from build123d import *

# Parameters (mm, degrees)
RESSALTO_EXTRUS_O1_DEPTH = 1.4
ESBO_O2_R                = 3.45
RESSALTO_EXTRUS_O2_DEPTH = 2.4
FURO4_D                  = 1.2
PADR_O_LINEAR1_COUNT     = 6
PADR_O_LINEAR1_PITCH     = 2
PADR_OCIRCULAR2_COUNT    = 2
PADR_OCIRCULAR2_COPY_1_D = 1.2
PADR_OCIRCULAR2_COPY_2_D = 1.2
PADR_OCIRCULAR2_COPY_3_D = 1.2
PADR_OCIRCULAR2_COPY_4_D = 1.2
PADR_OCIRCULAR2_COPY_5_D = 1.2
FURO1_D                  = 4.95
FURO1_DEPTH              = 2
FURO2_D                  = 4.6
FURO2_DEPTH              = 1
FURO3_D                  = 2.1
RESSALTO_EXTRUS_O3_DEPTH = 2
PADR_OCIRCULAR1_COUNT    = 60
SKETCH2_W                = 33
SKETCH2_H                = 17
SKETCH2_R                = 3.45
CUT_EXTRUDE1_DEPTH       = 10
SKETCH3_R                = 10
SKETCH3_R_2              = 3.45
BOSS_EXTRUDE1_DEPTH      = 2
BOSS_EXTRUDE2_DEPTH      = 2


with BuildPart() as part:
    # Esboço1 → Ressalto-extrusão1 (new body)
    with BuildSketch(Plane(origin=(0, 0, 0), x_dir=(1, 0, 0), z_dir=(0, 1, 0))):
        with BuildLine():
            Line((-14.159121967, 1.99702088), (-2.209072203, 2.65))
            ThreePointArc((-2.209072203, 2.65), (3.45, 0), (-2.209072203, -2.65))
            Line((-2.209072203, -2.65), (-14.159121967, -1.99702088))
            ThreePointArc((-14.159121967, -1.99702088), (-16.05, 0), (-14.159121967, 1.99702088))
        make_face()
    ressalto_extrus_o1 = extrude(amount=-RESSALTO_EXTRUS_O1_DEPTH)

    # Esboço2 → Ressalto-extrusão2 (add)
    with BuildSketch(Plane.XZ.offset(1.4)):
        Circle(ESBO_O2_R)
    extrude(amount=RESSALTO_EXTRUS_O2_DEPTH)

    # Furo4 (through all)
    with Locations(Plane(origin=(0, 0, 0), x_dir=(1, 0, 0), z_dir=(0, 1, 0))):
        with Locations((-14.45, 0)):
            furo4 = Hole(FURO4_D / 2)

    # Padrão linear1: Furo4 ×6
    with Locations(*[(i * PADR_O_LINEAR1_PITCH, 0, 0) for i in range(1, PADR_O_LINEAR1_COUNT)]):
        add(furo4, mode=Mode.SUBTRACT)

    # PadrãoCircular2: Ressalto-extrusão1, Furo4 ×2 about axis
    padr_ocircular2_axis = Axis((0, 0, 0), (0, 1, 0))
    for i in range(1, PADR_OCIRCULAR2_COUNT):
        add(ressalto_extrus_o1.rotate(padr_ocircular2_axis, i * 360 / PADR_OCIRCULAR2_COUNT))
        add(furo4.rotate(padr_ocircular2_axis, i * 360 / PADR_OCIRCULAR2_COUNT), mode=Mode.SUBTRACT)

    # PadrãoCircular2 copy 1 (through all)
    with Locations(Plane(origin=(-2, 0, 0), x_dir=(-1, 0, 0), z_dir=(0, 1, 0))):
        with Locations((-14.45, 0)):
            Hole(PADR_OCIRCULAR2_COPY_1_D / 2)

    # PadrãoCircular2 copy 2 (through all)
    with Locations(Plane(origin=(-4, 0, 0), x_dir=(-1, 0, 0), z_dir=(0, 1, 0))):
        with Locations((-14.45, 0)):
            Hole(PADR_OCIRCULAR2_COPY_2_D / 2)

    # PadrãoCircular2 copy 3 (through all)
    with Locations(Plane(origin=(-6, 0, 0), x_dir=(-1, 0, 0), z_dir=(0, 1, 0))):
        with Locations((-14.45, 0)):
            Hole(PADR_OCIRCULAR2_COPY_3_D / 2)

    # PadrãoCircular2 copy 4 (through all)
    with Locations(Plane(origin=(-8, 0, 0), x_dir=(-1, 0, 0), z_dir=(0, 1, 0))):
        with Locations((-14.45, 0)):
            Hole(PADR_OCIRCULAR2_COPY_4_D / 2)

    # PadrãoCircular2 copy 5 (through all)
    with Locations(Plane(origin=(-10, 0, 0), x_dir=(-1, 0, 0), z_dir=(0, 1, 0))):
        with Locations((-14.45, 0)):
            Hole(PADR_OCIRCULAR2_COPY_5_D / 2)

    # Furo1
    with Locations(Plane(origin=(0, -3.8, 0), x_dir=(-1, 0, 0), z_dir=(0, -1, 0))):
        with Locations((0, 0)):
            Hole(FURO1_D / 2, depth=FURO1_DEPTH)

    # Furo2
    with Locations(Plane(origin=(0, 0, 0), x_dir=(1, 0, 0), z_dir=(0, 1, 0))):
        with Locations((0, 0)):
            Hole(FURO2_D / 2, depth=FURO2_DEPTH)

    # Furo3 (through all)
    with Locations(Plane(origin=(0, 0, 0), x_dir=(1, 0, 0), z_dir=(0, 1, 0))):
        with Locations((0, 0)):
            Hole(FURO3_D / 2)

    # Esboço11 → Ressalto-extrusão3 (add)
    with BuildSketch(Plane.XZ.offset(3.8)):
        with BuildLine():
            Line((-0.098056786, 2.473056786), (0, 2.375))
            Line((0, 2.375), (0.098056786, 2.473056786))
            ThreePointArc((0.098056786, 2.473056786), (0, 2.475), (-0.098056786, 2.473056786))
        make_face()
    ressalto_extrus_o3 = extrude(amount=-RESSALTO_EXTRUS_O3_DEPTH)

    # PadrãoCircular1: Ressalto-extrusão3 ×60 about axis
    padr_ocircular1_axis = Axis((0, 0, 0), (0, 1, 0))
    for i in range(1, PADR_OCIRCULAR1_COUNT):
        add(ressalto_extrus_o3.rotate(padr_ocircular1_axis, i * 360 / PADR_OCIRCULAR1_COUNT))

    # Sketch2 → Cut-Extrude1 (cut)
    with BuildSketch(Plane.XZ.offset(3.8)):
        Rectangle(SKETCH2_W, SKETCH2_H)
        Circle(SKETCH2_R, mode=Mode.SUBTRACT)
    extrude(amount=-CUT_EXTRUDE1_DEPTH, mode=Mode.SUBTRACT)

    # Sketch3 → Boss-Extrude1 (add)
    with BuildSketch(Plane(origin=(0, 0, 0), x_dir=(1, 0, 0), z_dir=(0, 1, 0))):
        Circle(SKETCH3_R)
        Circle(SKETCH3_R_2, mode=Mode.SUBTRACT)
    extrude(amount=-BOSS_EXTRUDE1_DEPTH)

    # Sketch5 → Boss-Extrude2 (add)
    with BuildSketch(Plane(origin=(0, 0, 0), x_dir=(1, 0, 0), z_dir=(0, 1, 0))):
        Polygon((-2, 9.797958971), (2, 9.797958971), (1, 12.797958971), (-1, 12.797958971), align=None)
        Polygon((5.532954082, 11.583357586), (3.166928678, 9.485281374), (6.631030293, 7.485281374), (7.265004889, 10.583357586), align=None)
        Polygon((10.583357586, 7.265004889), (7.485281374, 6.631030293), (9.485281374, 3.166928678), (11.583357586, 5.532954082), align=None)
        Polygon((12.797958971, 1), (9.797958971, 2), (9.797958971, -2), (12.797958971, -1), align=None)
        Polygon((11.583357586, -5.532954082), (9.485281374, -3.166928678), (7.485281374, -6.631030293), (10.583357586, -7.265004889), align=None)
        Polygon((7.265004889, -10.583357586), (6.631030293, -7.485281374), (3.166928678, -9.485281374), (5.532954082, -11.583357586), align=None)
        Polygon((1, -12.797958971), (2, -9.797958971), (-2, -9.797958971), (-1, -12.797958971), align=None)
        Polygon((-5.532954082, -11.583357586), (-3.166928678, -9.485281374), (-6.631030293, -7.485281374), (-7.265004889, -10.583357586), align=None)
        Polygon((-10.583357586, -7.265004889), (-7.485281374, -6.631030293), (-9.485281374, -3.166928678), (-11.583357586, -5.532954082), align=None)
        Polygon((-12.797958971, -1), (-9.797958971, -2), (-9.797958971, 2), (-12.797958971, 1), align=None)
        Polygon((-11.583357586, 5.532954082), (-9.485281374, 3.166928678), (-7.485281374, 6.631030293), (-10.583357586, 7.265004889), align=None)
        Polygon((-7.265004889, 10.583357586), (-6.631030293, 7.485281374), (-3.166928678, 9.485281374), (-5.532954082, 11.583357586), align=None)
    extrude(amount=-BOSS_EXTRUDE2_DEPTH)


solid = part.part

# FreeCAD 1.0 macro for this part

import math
import FreeCAD as App
import Part
import Sketcher
Q = App.Units.Quantity


def add_polygon(sketch, points):
    """Adds a closed chain of lines whose ends are joined by coincident constraints."""
    first, n = sketch.GeometryCount, len(points)
    for a, b in zip(points, points[1:] + points[:1]):
        sketch.addGeometry(Part.LineSegment(App.Vector(*a, 0), App.Vector(*b, 0)), False)
    for i in range(n):
        sketch.addConstraint(Sketcher.Constraint("Coincident", first + i, 2, first + (i + 1) % n, 1))

doc = App.newDocument("Part")
body = doc.addObject("PartDesign::Body", "Body")

# Sketch on XZ plane
sketch1 = body.newObject("Sketcher::SketchObject", "Sketch")
sketch1.AttachmentSupport = (doc.getObject("XZ_Plane"), [""])
sketch1.MapMode = "FlatFace"
sketch1.addGeometry([
    Part.LineSegment(App.Vector(-2.2, -2.6, 0), App.Vector(-14.2, -2, 0)),
    Part.ArcOfCircle(Part.Circle(App.Vector(-14.1, 0, 0), App.Vector(0, 0, 1), 2), math.radians(93), math.radians(267)),
    Part.LineSegment(App.Vector(-14.2, 2, 0), App.Vector(-2.2, 2.6, 0)),
    Part.ArcOfCircle(Part.Circle(App.Vector(0, 0, 0), App.Vector(0, 0, 1), 3.5), math.radians(-130), math.radians(130)),
], False)
sketch1.addConstraint([
    Sketcher.Constraint("Tangent", 0, 2, 1, 2),
    Sketcher.Constraint("Tangent", 1, 1, 2, 1),
    Sketcher.Constraint("Coincident", 2, 2, 3, 2),
    Sketcher.Constraint("Coincident", 3, 1, 0, 1),
    Sketcher.Constraint("Coincident", 3, 3, -1, 1),
    Sketcher.Constraint("Symmetric", 0, 2, 1, 1, -1),
    Sketcher.Constraint("Radius", 1, 2.0),
    Sketcher.Constraint("Radius", 3, 3.45),
    Sketcher.Constraint("DistanceY", 3, 1, 2, 2, 5.3),
    Sketcher.Constraint("DistanceX", 1, 3, -1, 1, 14.05),
])
pad1 = body.newObject("PartDesign::Pad", "Pad")
pad1.Profile = sketch1
pad1.Length = 1.4

# Sketch on XZ plane
sketch2 = body.newObject("Sketcher::SketchObject", "Sketch001")
sketch2.AttachmentSupport = (doc.getObject("XZ_Plane"), [""])
sketch2.MapMode = "FlatFace"
sketch2.AttachmentOffset = App.Placement(App.Vector(0, 0, 1.4), App.Rotation())
sketch2.addGeometry(Part.Circle(App.Vector(0, 0, 0), App.Vector(0, 0, 1), 3.5), False)
sketch2.addConstraint([
    Sketcher.Constraint("Coincident", 0, 3, -1, 1),
    Sketcher.Constraint("Diameter", 0, 6.9),
])
pad2 = body.newObject("PartDesign::Pad", "Pad001")
pad2.Profile = sketch2
pad2.Length = 2.4

# Sketch on XZ plane
sketch3 = body.newObject("Sketcher::SketchObject", "Sketch002")
sketch3.AttachmentSupport = (doc.getObject("XZ_Plane"), [""])
sketch3.MapMode = "FlatFace"
sketch3.addGeometry(Part.Circle(App.Vector(-14.4, 0, 0), App.Vector(0, 0, 1), 0.6), False)
sketch3.addConstraint([
    Sketcher.Constraint("PointOnObject", 0, 3, -1),
    Sketcher.Constraint("Diameter", 0, 1.2),
    Sketcher.Constraint("DistanceX", 0, 3, -1, 1, 14.45),
])
doc.recompute()
hole = body.newObject("PartDesign::Hole", "Hole")
hole.Profile = sketch3
hole.ThreadType = "None"
hole.Diameter = 1.2
hole.DepthType = "ThroughAll"
hole.Reversed = True
doc.recompute()

linearpattern = body.newObject("PartDesign::LinearPattern", "LinearPattern")
linearpattern.Originals = [hole]
linearpattern.Direction = (doc.getObject("X_Axis"), [""])
linearpattern.Mode = "offset"
linearpattern.Offset = 2
linearpattern.Occurrences = 6
body.Tip = linearpattern
doc.recompute()

polarpattern = body.newObject("PartDesign::PolarPattern", "PolarPattern")
polarpattern.Originals = [pad1, hole]
polarpattern.Axis = (doc.getObject("Y_Axis"), [""])
polarpattern.Angle = 360
polarpattern.Occurrences = 2
body.Tip = polarpattern

# Sketch on XZ plane
sketch4 = body.newObject("Sketcher::SketchObject", "Sketch003")
sketch4.AttachmentSupport = (doc.getObject("XZ_Plane"), [""])
sketch4.MapMode = "FlatFace"
sketch4.addGeometry(Part.Circle(App.Vector(12.4, 0, 0), App.Vector(0, 0, 1), 0.6), False)
sketch4.addConstraint([
    Sketcher.Constraint("PointOnObject", 0, 3, -1),
    Sketcher.Constraint("Diameter", 0, 1.2),
    Sketcher.Constraint("DistanceX", -1, 1, 0, 3, 12.45),
])
doc.recompute()
hole2 = body.newObject("PartDesign::Hole", "Hole001")
hole2.Profile = sketch4
hole2.ThreadType = "None"
hole2.Diameter = 1.2
hole2.DepthType = "ThroughAll"
hole2.Reversed = True

# Sketch on XZ plane
sketch5 = body.newObject("Sketcher::SketchObject", "Sketch004")
sketch5.AttachmentSupport = (doc.getObject("XZ_Plane"), [""])
sketch5.MapMode = "FlatFace"
sketch5.addGeometry(Part.Circle(App.Vector(10.4, 0, 0), App.Vector(0, 0, 1), 0.6), False)
sketch5.addConstraint([
    Sketcher.Constraint("PointOnObject", 0, 3, -1),
    Sketcher.Constraint("Diameter", 0, 1.2),
    Sketcher.Constraint("DistanceX", -1, 1, 0, 3, 10.45),
])
doc.recompute()
hole3 = body.newObject("PartDesign::Hole", "Hole002")
hole3.Profile = sketch5
hole3.ThreadType = "None"
hole3.Diameter = 1.2
hole3.DepthType = "ThroughAll"
hole3.Reversed = True

# Sketch on XZ plane
sketch6 = body.newObject("Sketcher::SketchObject", "Sketch005")
sketch6.AttachmentSupport = (doc.getObject("XZ_Plane"), [""])
sketch6.MapMode = "FlatFace"
sketch6.addGeometry(Part.Circle(App.Vector(8.4, 0, 0), App.Vector(0, 0, 1), 0.6), False)
sketch6.addConstraint([
    Sketcher.Constraint("PointOnObject", 0, 3, -1),
    Sketcher.Constraint("Diameter", 0, 1.2),
    Sketcher.Constraint("DistanceX", -1, 1, 0, 3, 8.45),
])
doc.recompute()
hole4 = body.newObject("PartDesign::Hole", "Hole003")
hole4.Profile = sketch6
hole4.ThreadType = "None"
hole4.Diameter = 1.2
hole4.DepthType = "ThroughAll"
hole4.Reversed = True

# Sketch on XZ plane
sketch7 = body.newObject("Sketcher::SketchObject", "Sketch006")
sketch7.AttachmentSupport = (doc.getObject("XZ_Plane"), [""])
sketch7.MapMode = "FlatFace"
sketch7.addGeometry(Part.Circle(App.Vector(6.5, 0, 0), App.Vector(0, 0, 1), 0.6), False)
sketch7.addConstraint([
    Sketcher.Constraint("PointOnObject", 0, 3, -1),
    Sketcher.Constraint("Diameter", 0, 1.2),
    Sketcher.Constraint("DistanceX", -1, 1, 0, 3, 6.45),
])
doc.recompute()
hole5 = body.newObject("PartDesign::Hole", "Hole004")
hole5.Profile = sketch7
hole5.ThreadType = "None"
hole5.Diameter = 1.2
hole5.DepthType = "ThroughAll"
hole5.Reversed = True

# Sketch on XZ plane
sketch8 = body.newObject("Sketcher::SketchObject", "Sketch007")
sketch8.AttachmentSupport = (doc.getObject("XZ_Plane"), [""])
sketch8.MapMode = "FlatFace"
sketch8.addGeometry(Part.Circle(App.Vector(4.5, 0, 0), App.Vector(0, 0, 1), 0.6), False)
sketch8.addConstraint([
    Sketcher.Constraint("PointOnObject", 0, 3, -1),
    Sketcher.Constraint("Diameter", 0, 1.2),
    Sketcher.Constraint("DistanceX", -1, 1, 0, 3, 4.45),
])
doc.recompute()
hole6 = body.newObject("PartDesign::Hole", "Hole005")
hole6.Profile = sketch8
hole6.ThreadType = "None"
hole6.Diameter = 1.2
hole6.DepthType = "ThroughAll"
hole6.Reversed = True

# Sketch on XZ plane
sketch9 = body.newObject("Sketcher::SketchObject", "Sketch008")
sketch9.AttachmentSupport = (doc.getObject("XZ_Plane"), [""])
sketch9.MapMode = "FlatFace"
sketch9.AttachmentOffset = App.Placement(App.Vector(0, 0, 3.8), App.Rotation())
sketch9.addGeometry(Part.Circle(App.Vector(0, 0, 0), App.Vector(0, 0, 1), 2.5), False)
sketch9.addConstraint([
    Sketcher.Constraint("Coincident", 0, 3, -1, 1),
    Sketcher.Constraint("Diameter", 0, 4.95),
])
doc.recompute()
hole7 = body.newObject("PartDesign::Hole", "Hole006")
hole7.Profile = sketch9
hole7.ThreadType = "None"
hole7.Diameter = 4.95
hole7.DepthType = "Dimension"
hole7.Depth = 2
hole7.DrillPoint = "Flat"

# Sketch on XZ plane
sketch10 = body.newObject("Sketcher::SketchObject", "Sketch009")
sketch10.AttachmentSupport = (doc.getObject("XZ_Plane"), [""])
sketch10.MapMode = "FlatFace"
sketch10.addGeometry(Part.Circle(App.Vector(0, 0, 0), App.Vector(0, 0, 1), 2.3), False)
sketch10.addConstraint([
    Sketcher.Constraint("Coincident", 0, 3, -1, 1),
    Sketcher.Constraint("Diameter", 0, 4.6),
])
doc.recompute()
hole8 = body.newObject("PartDesign::Hole", "Hole007")
hole8.Profile = sketch10
hole8.ThreadType = "None"
hole8.Diameter = 4.6
hole8.DepthType = "Dimension"
hole8.Depth = 1
hole8.DrillPoint = "Flat"
hole8.Reversed = True

# Sketch on XZ plane
sketch11 = body.newObject("Sketcher::SketchObject", "Sketch010")
sketch11.AttachmentSupport = (doc.getObject("XZ_Plane"), [""])
sketch11.MapMode = "FlatFace"
sketch11.addGeometry(Part.Circle(App.Vector(0, 0, 0), App.Vector(0, 0, 1), 1.1), False)
sketch11.addConstraint([
    Sketcher.Constraint("Coincident", 0, 3, -1, 1),
    Sketcher.Constraint("Diameter", 0, 2.1),
])
doc.recompute()
hole9 = body.newObject("PartDesign::Hole", "Hole008")
hole9.Profile = sketch11
hole9.ThreadType = "None"
hole9.Diameter = 2.1
hole9.DepthType = "ThroughAll"
hole9.Reversed = True

# Sketch on XZ plane
sketch12 = body.newObject("Sketcher::SketchObject", "Sketch011")
sketch12.AttachmentSupport = (doc.getObject("XZ_Plane"), [""])
sketch12.MapMode = "FlatFace"
sketch12.AttachmentOffset = App.Placement(App.Vector(0, 0, 3.8), App.Rotation())
sketch12.addGeometry([
    Part.LineSegment(App.Vector(-0.1, 2.47, 0), App.Vector(0, 2.38, 0)),
    Part.LineSegment(App.Vector(0, 2.38, 0), App.Vector(0.1, 2.47, 0)),
    Part.ArcOfCircle(Part.Circle(App.Vector(0, 0, 0), App.Vector(0, 0, 1), 2.48), math.radians(87.73), math.radians(92.27)),
], False)
sketch12.addConstraint([
    Sketcher.Constraint("Coincident", 0, 2, 1, 1),
    Sketcher.Constraint("Coincident", 1, 2, 2, 1),
    Sketcher.Constraint("Coincident", 2, 2, 0, 1),
    Sketcher.Constraint("Coincident", 2, 3, -1, 1),
    Sketcher.Constraint("PointOnObject", 0, 2, -2),
    Sketcher.Constraint("Perpendicular", 0, 1),
    Sketcher.Constraint("Horizontal", 1, 2, 2, 2),
    Sketcher.Constraint("Radius", 2, 2.475),
    Sketcher.Constraint("DistanceY", -1, 1, 0, 2, 2.375),
])
pad3 = body.newObject("PartDesign::Pad", "Pad002")
pad3.Profile = sketch12
pad3.Length = 2
pad3.Reversed = True
doc.recompute()

polarpattern2 = body.newObject("PartDesign::PolarPattern", "PolarPattern001")
polarpattern2.Originals = [pad3]
polarpattern2.Axis = (doc.getObject("Y_Axis"), [""])
polarpattern2.Angle = 360
polarpattern2.Occurrences = 60
body.Tip = polarpattern2

# Sketch on XZ plane
sketch13 = body.newObject("Sketcher::SketchObject", "Sketch012")
sketch13.AttachmentSupport = (doc.getObject("XZ_Plane"), [""])
sketch13.MapMode = "FlatFace"
sketch13.AttachmentOffset = App.Placement(App.Vector(0, 0, 3.8), App.Rotation())
add_polygon(sketch13, [(-16.5, 8.5), (-16.5, -8.5), (16.5, -8.5), (16.5, 8.5)])  # lines 0-3
sketch13.addGeometry(Part.Circle(App.Vector(0, 0, 0), App.Vector(0, 0, 1), 3.5), False)  # 4
sketch13.addConstraint([
    Sketcher.Constraint("Vertical", 0),
    Sketcher.Constraint("Horizontal", 1),
    Sketcher.Constraint("Vertical", 2),
    Sketcher.Constraint("Horizontal", 3),
    Sketcher.Constraint("Coincident", 4, 3, -1, 1),
    Sketcher.Constraint("Symmetric", 0, 2, 2, 2, -1, 1),
    Sketcher.Constraint("Diameter", 4, 6.9),
    Sketcher.Constraint("DistanceX", 1, 1, 1, 2, 33.0),
    Sketcher.Constraint("DistanceY", 0, 2, 0, 1, 17.0),
])
pocket1 = body.newObject("PartDesign::Pocket", "Pocket")
pocket1.Profile = sketch13
pocket1.Length = 10

# Sketch on XZ plane
sketch14 = body.newObject("Sketcher::SketchObject", "Sketch013")
sketch14.AttachmentSupport = (doc.getObject("XZ_Plane"), [""])
sketch14.MapMode = "FlatFace"
sketch14.addGeometry([
    Part.Circle(App.Vector(0, 0, 0), App.Vector(0, 0, 1), 10),
    Part.Circle(App.Vector(0, 0, 0), App.Vector(0, 0, 1), 3.5),
], False)
sketch14.addConstraint([
    Sketcher.Constraint("Coincident", 0, 3, -1, 1),
    Sketcher.Constraint("Coincident", 1, 3, -1, 1),
    Sketcher.Constraint("Diameter", 0, 20.0),
    Sketcher.Constraint("Diameter", 1, 6.9),
])
pad4 = body.newObject("PartDesign::Pad", "Pad003")
pad4.Profile = sketch14
pad4.Length = 2

# Sketch on XZ plane
sketch15 = body.newObject("Sketcher::SketchObject", "Sketch014")
sketch15.AttachmentSupport = (doc.getObject("XZ_Plane"), [""])
sketch15.MapMode = "FlatFace"
add_polygon(sketch15, [(-2, -9.8), (2, -9.8), (1, -12.8), (-1, -12.8)])  # lines 0-3
add_polygon(sketch15, [(5.5, -11.6), (3.2, -9.5), (6.6, -7.5), (7.3, -10.6)])  # lines 4-7
add_polygon(sketch15, [(10.6, -7.3), (7.5, -6.6), (9.5, -3.2), (11.6, -5.5)])  # lines 8-11
add_polygon(sketch15, [(12.8, -1), (9.8, -2), (9.8, 2), (12.8, 1)])  # lines 12-15
add_polygon(sketch15, [(11.6, 5.5), (9.5, 3.2), (7.5, 6.6), (10.6, 7.3)])  # lines 16-19
add_polygon(sketch15, [(7.3, 10.6), (6.6, 7.5), (3.2, 9.5), (5.5, 11.6)])  # lines 20-23
add_polygon(sketch15, [(1, 12.8), (2, 9.8), (-2, 9.8), (-1, 12.8)])  # lines 24-27
add_polygon(sketch15, [(-5.5, 11.6), (-3.2, 9.5), (-6.6, 7.5), (-7.3, 10.6)])  # lines 28-31
add_polygon(sketch15, [(-10.6, 7.3), (-7.5, 6.6), (-9.5, 3.2), (-11.6, 5.5)])  # lines 32-35
add_polygon(sketch15, [(-12.8, 1), (-9.8, 2), (-9.8, -2), (-12.8, -1)])  # lines 36-39
add_polygon(sketch15, [(-11.6, -5.5), (-9.5, -3.2), (-7.5, -6.6), (-10.6, -7.3)])  # lines 40-43
add_polygon(sketch15, [(-7.3, -10.6), (-6.6, -7.5), (-3.2, -9.5), (-5.5, -11.6)])  # lines 44-47
sketch15.addConstraint([
    Sketcher.Constraint("Horizontal", 0),
    Sketcher.Constraint("Horizontal", 2),
    Sketcher.Constraint("Vertical", 13),
    Sketcher.Constraint("Vertical", 15),
    Sketcher.Constraint("Horizontal", 25),
    Sketcher.Constraint("Horizontal", 27),
    Sketcher.Constraint("Vertical", 37),
    Sketcher.Constraint("Vertical", 39),
    Sketcher.Constraint("Symmetric", 3, 2, 24, 2, -1, 1),
    Sketcher.Constraint("Symmetric", 1, 2, 26, 2, -1, 1),
    Sketcher.Constraint("Symmetric", 4, 2, 28, 2, -1, 1),
    Sketcher.Constraint("Symmetric", 5, 2, 29, 2, -1, 1),
    Sketcher.Constraint("Symmetric", 6, 2, 30, 2, -1, 1),
    Sketcher.Constraint("Symmetric", 7, 2, 31, 2, -1, 1),
    Sketcher.Constraint("Symmetric", 8, 2, 32, 2, -1, 1),
    Sketcher.Constraint("Symmetric", 9, 2, 33, 2, -1, 1),
    Sketcher.Constraint("Symmetric", 10, 2, 34, 2, -1, 1),
    Sketcher.Constraint("Symmetric", 11, 2, 35, 2, -1, 1),
    Sketcher.Constraint("Symmetric", 12, 2, 36, 2, -1, 1),
    Sketcher.Constraint("Symmetric", 14, 2, 38, 2, -1, 1),
    Sketcher.Constraint("Symmetric", 16, 2, 40, 2, -1, 1),
    Sketcher.Constraint("Symmetric", 17, 2, 41, 2, -1, 1),
    Sketcher.Constraint("Symmetric", 18, 2, 42, 2, -1, 1),
    Sketcher.Constraint("Symmetric", 19, 2, 43, 2, -1, 1),
    Sketcher.Constraint("Symmetric", 20, 2, 44, 2, -1, 1),
    Sketcher.Constraint("Symmetric", 21, 2, 45, 2, -1, 1),
    Sketcher.Constraint("Symmetric", 22, 2, 46, 2, -1, 1),
    Sketcher.Constraint("Symmetric", 23, 2, 47, 2, -1, 1),
    Sketcher.Constraint("Symmetric", 21, 2, 28, 2, -2),
    Sketcher.Constraint("Symmetric", 20, 2, 29, 2, -2),
    Sketcher.Constraint("Symmetric", 23, 2, 30, 2, -2),
    Sketcher.Constraint("Symmetric", 22, 2, 31, 2, -2),
    Sketcher.Constraint("Symmetric", 17, 2, 32, 2, -2),
    Sketcher.Constraint("Symmetric", 16, 2, 33, 2, -2),
    Sketcher.Constraint("Symmetric", 19, 2, 34, 2, -2),
    Sketcher.Constraint("Symmetric", 18, 2, 35, 2, -2),
    Sketcher.Constraint("Parallel", 5, 7),
    Sketcher.Constraint("Parallel", 9, 11),
    Sketcher.Constraint("Perpendicular", 3, 12),
    Sketcher.Constraint("Perpendicular", 1, 14),
    Sketcher.Constraint("Perpendicular", 4, 16),
    Sketcher.Constraint("Perpendicular", 7, 17),
    Sketcher.Constraint("Perpendicular", 6, 18),
    Sketcher.Constraint("Perpendicular", 12, 24),
    Sketcher.Constraint("Perpendicular", 14, 26),
    Sketcher.Constraint("Perpendicular", 24, 36),
    Sketcher.Constraint("Perpendicular", 26, 38),
    Sketcher.Constraint("Horizontal", 13, 2, 36, 2),
    Sketcher.Constraint("Horizontal", 15, 2, 38, 2),
    Sketcher.Constraint("Vertical", 0, 2, 24, 2),
    Sketcher.Constraint("Equal", 25, 13),
    Sketcher.Constraint("Equal", 27, 15),
    Sketcher.Constraint("Equal", 3, 4),
    Sketcher.Constraint("Equal", 4, 6),
    Sketcher.Constraint("Equal", 6, 8),
    Sketcher.Constraint("Equal", 5, 9),
    Sketcher.Constraint("DistanceX", 0, 1, 0, 2, 4.0),
    Sketcher.Constraint("DistanceX", 2, 2, 2, 1, 2.0),
    Sketcher.Constraint("Angle", 5, Q("30 deg")),
    Sketcher.Constraint("Distance", 5, 4.0),
    Sketcher.Constraint("Distance", 7, 2.0),
    Sketcher.Constraint("DistanceY", 1, 2, 0, 2, 3.0),
    Sketcher.Constraint("DistanceY", 6, 2, 0, 2, 0.785399),
    Sketcher.Constraint("DistanceX", 12, 2, 10, 2, 1.785399),
    Sketcher.Constraint("DistanceY", 0, 2, -1, 1, 9.797959),
    Sketcher.Constraint("DistanceX", -1, 1, 4, 2, 3.166929),
    Sketcher.Constraint("DistanceX", -1, 1, 8, 2, 7.485281),
    Sketcher.Constraint("DistanceY", 8, 2, -1, 1, 6.63103),
])
pad5 = body.newObject("PartDesign::Pad", "Pad004")
pad5.Profile = sketch15
pad5.Length = 2

doc.recompute()
